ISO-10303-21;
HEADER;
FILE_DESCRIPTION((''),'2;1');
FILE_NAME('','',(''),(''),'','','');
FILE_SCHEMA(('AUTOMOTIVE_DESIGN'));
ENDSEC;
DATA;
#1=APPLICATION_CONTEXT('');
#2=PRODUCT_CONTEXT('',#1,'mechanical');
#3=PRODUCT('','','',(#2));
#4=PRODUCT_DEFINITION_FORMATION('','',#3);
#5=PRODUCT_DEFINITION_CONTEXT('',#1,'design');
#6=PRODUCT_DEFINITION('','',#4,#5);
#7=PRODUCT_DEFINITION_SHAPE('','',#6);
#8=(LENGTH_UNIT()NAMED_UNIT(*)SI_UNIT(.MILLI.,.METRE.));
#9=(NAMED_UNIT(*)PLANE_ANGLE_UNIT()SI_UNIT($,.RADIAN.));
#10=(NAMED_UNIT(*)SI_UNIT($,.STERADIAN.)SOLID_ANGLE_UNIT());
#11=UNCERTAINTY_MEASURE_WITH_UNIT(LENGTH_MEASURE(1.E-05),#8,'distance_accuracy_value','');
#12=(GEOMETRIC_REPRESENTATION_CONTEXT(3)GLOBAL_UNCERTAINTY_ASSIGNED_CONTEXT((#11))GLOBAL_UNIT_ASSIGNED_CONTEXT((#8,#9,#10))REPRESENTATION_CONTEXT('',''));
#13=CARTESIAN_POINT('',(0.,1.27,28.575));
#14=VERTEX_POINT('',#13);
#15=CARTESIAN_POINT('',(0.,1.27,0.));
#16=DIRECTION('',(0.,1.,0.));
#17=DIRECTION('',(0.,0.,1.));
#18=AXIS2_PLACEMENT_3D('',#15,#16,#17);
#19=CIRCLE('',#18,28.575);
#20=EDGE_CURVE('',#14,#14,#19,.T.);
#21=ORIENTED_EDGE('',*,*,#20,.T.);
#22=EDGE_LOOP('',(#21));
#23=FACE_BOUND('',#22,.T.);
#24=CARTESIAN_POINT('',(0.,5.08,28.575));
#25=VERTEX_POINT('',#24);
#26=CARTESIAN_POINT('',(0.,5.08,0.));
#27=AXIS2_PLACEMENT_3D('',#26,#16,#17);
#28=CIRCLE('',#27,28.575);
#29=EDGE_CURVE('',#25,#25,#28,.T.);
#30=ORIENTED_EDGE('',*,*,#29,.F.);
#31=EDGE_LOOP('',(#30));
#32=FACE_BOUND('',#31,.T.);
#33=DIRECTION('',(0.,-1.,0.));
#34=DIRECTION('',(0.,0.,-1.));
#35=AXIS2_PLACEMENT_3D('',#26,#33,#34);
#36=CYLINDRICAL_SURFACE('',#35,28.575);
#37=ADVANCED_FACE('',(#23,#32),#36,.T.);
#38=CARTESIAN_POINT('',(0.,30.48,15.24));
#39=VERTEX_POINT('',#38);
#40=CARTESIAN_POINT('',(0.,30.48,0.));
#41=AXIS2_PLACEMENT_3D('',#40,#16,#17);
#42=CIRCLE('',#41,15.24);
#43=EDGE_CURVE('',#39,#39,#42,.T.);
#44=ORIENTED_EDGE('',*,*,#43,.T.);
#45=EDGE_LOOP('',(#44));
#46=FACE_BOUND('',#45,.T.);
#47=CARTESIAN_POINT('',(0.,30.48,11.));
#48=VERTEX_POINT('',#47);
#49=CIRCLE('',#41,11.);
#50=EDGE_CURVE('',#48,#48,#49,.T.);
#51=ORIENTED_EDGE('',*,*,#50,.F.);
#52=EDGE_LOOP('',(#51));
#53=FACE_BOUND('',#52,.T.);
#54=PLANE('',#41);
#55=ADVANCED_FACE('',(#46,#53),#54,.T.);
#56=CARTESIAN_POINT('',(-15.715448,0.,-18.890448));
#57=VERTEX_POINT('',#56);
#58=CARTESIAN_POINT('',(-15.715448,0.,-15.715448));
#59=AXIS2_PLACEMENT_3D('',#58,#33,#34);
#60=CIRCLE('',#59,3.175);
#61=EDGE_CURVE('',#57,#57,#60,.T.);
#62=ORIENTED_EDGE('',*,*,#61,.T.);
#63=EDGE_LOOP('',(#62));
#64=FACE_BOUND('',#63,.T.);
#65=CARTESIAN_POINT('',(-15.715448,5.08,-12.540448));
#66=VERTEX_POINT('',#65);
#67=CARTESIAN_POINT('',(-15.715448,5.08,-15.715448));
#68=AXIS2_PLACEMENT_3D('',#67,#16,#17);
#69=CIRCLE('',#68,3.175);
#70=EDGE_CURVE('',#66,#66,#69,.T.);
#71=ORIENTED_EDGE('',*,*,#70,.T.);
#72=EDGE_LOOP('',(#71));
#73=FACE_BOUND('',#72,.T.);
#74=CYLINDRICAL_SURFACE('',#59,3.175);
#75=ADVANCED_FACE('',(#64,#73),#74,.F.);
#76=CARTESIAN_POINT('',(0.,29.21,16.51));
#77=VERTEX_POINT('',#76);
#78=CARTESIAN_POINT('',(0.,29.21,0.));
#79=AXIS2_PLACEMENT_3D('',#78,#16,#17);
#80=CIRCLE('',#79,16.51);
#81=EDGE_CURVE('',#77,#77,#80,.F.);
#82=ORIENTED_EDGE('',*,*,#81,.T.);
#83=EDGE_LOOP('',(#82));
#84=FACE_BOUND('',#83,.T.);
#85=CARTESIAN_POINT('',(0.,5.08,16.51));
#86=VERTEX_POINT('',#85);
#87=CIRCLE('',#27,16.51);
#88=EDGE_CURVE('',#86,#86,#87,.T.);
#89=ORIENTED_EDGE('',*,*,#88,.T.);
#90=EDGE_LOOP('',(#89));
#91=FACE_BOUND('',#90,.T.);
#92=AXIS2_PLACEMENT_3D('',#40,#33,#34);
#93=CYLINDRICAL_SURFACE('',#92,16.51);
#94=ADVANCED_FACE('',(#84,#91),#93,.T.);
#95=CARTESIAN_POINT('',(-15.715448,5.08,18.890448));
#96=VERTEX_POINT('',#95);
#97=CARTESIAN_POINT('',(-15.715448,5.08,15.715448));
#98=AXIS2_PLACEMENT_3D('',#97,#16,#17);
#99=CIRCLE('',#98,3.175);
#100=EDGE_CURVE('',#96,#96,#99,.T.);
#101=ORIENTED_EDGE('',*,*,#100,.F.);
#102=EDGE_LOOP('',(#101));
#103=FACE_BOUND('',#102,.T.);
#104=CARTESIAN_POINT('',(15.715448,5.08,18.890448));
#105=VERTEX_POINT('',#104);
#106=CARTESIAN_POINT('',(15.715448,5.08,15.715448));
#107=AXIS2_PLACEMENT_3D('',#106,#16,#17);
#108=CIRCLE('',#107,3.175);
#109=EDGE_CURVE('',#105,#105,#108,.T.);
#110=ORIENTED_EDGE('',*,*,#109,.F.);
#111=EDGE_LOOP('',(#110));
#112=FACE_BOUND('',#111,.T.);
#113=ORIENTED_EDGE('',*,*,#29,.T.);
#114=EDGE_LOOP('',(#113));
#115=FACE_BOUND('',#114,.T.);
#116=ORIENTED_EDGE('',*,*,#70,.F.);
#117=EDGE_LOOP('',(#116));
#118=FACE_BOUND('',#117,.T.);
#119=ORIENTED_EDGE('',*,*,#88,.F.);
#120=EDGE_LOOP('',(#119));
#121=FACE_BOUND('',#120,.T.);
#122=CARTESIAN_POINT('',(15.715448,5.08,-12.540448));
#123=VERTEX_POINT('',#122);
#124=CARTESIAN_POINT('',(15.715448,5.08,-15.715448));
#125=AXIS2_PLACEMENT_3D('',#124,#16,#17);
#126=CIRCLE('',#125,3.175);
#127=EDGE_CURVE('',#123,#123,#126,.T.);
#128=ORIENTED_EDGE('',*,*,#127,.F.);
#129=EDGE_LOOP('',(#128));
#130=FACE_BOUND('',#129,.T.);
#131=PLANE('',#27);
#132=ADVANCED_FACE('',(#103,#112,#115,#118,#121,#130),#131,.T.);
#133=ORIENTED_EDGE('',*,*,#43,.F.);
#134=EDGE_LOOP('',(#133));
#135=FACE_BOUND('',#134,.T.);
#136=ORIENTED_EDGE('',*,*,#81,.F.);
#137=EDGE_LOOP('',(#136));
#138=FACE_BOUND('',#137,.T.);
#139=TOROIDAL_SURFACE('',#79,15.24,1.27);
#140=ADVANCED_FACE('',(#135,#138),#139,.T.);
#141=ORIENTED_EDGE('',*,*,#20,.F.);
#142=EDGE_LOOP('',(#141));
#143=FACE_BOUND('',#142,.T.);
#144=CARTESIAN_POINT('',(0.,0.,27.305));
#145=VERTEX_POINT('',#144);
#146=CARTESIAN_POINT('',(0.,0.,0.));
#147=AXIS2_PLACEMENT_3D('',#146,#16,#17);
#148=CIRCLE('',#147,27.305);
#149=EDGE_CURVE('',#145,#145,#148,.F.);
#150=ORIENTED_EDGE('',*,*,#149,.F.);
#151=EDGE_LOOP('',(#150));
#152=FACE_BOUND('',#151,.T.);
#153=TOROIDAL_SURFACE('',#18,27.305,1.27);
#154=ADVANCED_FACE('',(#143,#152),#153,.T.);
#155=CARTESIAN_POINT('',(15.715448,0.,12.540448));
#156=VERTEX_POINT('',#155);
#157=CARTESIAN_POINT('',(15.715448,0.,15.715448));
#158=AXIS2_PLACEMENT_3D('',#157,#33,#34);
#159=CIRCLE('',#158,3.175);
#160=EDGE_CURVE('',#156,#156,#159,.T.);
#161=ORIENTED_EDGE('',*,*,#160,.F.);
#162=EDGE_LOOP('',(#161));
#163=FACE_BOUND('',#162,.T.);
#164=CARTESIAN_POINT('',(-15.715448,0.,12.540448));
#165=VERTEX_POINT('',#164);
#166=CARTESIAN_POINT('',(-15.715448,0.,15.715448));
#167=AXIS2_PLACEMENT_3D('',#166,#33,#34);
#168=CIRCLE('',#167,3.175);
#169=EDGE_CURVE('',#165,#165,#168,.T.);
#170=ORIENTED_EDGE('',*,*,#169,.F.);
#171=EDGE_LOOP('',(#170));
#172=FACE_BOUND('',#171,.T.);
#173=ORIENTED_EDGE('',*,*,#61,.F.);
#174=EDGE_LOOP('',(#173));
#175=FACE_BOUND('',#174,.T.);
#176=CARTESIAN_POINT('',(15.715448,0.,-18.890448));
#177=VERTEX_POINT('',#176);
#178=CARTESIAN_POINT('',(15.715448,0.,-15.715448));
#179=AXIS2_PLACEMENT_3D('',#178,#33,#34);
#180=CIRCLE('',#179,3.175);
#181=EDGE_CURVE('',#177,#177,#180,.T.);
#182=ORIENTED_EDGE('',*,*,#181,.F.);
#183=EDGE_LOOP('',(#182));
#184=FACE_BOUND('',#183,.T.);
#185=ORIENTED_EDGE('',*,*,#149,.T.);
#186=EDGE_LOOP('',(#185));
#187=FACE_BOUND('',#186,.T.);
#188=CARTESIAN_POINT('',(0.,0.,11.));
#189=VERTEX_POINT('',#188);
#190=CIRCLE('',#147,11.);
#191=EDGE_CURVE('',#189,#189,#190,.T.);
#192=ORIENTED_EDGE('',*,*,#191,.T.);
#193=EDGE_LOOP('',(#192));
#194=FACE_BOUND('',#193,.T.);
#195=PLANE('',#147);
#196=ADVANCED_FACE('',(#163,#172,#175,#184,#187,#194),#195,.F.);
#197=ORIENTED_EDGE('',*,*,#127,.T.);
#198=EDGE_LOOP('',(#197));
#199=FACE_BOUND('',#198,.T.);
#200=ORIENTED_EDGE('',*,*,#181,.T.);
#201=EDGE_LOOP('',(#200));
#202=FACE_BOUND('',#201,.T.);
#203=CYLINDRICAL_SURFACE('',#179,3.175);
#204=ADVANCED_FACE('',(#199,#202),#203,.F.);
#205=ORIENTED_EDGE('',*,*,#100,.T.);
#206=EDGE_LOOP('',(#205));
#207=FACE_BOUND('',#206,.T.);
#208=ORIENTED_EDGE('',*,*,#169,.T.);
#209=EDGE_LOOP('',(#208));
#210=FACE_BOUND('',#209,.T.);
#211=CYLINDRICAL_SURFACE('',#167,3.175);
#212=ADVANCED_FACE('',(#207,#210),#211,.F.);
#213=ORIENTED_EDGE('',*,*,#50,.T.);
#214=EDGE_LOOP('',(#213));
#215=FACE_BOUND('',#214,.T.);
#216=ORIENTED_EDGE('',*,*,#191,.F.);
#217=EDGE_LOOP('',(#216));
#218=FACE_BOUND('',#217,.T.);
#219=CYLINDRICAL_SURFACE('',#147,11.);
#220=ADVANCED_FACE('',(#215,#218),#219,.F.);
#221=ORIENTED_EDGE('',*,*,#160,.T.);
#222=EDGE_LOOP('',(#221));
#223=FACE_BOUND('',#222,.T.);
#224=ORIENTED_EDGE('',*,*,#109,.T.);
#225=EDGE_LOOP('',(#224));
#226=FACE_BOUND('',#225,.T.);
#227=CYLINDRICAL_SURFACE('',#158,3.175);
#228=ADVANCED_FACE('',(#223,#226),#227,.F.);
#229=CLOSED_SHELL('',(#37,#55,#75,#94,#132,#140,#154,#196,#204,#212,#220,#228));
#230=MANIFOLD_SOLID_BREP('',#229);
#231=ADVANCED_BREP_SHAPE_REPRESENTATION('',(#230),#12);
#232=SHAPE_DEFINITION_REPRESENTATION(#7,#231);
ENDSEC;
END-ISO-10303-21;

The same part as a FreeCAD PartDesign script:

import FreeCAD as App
import Part
import Sketcher

V = App.Vector
Q = App.Units.Quantity


def edges_at(feature, points):
    """Names of the edges that pass closest to the given points."""
    edges = feature.Shape.Edges
    near = lambda p: min(range(len(edges)), key=lambda i: edges[i].distToShape(Part.Vertex(*p))[0])
    return sorted({f"Edge{near(p) + 1}" for p in points})

doc = App.newDocument("Part")
body = doc.addObject("PartDesign::Body", "Body")

# Sketch on XZ plane
sketch1 = body.newObject("Sketcher::SketchObject", "Sketch")
sketch1.AttachmentSupport = (doc.getObject("XZ_Plane"), [""])
sketch1.MapMode = "FlatFace"
sketch1.addGeometry(Part.Circle(V(0, 0, 0), V(0, 0, 1), 29), False)
sketch1.addConstraint([
    Sketcher.Constraint("Coincident", 0, 3, -1, 1),
    Sketcher.Constraint("Diameter", 0, Q("2.25 in")),
])
pad1 = body.newObject("PartDesign::Pad", "Pad")
pad1.Profile = sketch1
pad1.Length = Q("0.2 in")
pad1.Reversed = True

# Sketch on XZ plane
sketch2 = body.newObject("Sketcher::SketchObject", "Sketch001")
sketch2.AttachmentSupport = (doc.getObject("XZ_Plane"), [""])
sketch2.MapMode = "FlatFace"
sketch2.AttachmentOffset = App.Placement(V(0, 0, -0.2 * 25.4), App.Rotation())
sketch2.addGeometry(Part.Circle(V(0, 0, 0), V(0, 0, 1), 17), False)
sketch2.addConstraint([
    Sketcher.Constraint("Coincident", 0, 3, -1, 1),
    Sketcher.Constraint("Diameter", 0, Q("1.3 in")),
])
pad2 = body.newObject("PartDesign::Pad", "Pad001")
pad2.Profile = sketch2
pad2.Length = Q("1 in")
pad2.Reversed = True

# Sketch on XZ plane
sketch3 = body.newObject("Sketcher::SketchObject", "Sketch002")
sketch3.AttachmentSupport = (doc.getObject("XZ_Plane"), [""])
sketch3.MapMode = "FlatFace"
sketch3.addGeometry([
    Part.Circle(V(-15.7, -15.7, 0), V(0, 0, 1), 3.2),
    Part.Circle(V(15.7, -15.7, 0), V(0, 0, 1), 3.2),
    Part.Circle(V(15.7, 15.7, 0), V(0, 0, 1), 3.2),
    Part.Circle(V(-15.7, 15.7, 0), V(0, 0, 1), 3.2),
], False)
sketch3.addConstraint([
    Sketcher.Constraint("Equal", 0, 1),
    Sketcher.Constraint("Equal", 1, 2),
    Sketcher.Constraint("Equal", 2, 3),
    Sketcher.Constraint("Symmetric", 0, 3, 2, 3, -1, 1),
    Sketcher.Constraint("Symmetric", 1, 3, 3, 3, -1, 1),
    Sketcher.Constraint("Symmetric", 0, 3, 1, 3, -2),
    Sketcher.Constraint("Diameter", 0, Q("0.25 in")),
    Sketcher.Constraint("DistanceX", 0, 3, -1, 1, Q("15.715448 mm")),
    Sketcher.Constraint("DistanceY", 0, 3, -1, 1, Q("15.715448 mm")),
])
doc.recompute()
hole = body.newObject("PartDesign::Hole", "Hole")
hole.Profile = sketch3
hole.ThreadType = "None"
hole.Diameter = Q("0.25 in")
hole.DepthType = "Dimension"
hole.Depth = Q("0.35 in")
hole.DrillPoint = "Angled"
hole.DrillPointAngle = 118

# Sketch on XZ plane
sketch4 = body.newObject("Sketcher::SketchObject", "Sketch003")
sketch4.AttachmentSupport = (doc.getObject("XZ_Plane"), [""])
sketch4.MapMode = "FlatFace"
sketch4.AttachmentOffset = App.Placement(V(0, 0, -1.2 * 25.4), App.Rotation())
sketch4.addGeometry(Part.Circle(V(0, 0, 0), V(0, 0, 1), 11), False)
sketch4.addConstraint([
    Sketcher.Constraint("Coincident", 0, 3, -1, 1),
    Sketcher.Constraint("Diameter", 0, Q("22 mm")),
])
pocket1 = body.newObject("PartDesign::Pocket", "Pocket")
pocket1.Profile = sketch4
pocket1.Type = "ThroughAll"
pocket1.Midplane = True
doc.recompute()

fillet = body.newObject("PartDesign::Fillet", "Fillet")
fillet.Base = (pocket1, edges_at(pocket1, [(0, 0, -28.575), (0, 30.48, -16.51)]))
fillet.Radius = Q("0.05 in")

doc.recompute()
